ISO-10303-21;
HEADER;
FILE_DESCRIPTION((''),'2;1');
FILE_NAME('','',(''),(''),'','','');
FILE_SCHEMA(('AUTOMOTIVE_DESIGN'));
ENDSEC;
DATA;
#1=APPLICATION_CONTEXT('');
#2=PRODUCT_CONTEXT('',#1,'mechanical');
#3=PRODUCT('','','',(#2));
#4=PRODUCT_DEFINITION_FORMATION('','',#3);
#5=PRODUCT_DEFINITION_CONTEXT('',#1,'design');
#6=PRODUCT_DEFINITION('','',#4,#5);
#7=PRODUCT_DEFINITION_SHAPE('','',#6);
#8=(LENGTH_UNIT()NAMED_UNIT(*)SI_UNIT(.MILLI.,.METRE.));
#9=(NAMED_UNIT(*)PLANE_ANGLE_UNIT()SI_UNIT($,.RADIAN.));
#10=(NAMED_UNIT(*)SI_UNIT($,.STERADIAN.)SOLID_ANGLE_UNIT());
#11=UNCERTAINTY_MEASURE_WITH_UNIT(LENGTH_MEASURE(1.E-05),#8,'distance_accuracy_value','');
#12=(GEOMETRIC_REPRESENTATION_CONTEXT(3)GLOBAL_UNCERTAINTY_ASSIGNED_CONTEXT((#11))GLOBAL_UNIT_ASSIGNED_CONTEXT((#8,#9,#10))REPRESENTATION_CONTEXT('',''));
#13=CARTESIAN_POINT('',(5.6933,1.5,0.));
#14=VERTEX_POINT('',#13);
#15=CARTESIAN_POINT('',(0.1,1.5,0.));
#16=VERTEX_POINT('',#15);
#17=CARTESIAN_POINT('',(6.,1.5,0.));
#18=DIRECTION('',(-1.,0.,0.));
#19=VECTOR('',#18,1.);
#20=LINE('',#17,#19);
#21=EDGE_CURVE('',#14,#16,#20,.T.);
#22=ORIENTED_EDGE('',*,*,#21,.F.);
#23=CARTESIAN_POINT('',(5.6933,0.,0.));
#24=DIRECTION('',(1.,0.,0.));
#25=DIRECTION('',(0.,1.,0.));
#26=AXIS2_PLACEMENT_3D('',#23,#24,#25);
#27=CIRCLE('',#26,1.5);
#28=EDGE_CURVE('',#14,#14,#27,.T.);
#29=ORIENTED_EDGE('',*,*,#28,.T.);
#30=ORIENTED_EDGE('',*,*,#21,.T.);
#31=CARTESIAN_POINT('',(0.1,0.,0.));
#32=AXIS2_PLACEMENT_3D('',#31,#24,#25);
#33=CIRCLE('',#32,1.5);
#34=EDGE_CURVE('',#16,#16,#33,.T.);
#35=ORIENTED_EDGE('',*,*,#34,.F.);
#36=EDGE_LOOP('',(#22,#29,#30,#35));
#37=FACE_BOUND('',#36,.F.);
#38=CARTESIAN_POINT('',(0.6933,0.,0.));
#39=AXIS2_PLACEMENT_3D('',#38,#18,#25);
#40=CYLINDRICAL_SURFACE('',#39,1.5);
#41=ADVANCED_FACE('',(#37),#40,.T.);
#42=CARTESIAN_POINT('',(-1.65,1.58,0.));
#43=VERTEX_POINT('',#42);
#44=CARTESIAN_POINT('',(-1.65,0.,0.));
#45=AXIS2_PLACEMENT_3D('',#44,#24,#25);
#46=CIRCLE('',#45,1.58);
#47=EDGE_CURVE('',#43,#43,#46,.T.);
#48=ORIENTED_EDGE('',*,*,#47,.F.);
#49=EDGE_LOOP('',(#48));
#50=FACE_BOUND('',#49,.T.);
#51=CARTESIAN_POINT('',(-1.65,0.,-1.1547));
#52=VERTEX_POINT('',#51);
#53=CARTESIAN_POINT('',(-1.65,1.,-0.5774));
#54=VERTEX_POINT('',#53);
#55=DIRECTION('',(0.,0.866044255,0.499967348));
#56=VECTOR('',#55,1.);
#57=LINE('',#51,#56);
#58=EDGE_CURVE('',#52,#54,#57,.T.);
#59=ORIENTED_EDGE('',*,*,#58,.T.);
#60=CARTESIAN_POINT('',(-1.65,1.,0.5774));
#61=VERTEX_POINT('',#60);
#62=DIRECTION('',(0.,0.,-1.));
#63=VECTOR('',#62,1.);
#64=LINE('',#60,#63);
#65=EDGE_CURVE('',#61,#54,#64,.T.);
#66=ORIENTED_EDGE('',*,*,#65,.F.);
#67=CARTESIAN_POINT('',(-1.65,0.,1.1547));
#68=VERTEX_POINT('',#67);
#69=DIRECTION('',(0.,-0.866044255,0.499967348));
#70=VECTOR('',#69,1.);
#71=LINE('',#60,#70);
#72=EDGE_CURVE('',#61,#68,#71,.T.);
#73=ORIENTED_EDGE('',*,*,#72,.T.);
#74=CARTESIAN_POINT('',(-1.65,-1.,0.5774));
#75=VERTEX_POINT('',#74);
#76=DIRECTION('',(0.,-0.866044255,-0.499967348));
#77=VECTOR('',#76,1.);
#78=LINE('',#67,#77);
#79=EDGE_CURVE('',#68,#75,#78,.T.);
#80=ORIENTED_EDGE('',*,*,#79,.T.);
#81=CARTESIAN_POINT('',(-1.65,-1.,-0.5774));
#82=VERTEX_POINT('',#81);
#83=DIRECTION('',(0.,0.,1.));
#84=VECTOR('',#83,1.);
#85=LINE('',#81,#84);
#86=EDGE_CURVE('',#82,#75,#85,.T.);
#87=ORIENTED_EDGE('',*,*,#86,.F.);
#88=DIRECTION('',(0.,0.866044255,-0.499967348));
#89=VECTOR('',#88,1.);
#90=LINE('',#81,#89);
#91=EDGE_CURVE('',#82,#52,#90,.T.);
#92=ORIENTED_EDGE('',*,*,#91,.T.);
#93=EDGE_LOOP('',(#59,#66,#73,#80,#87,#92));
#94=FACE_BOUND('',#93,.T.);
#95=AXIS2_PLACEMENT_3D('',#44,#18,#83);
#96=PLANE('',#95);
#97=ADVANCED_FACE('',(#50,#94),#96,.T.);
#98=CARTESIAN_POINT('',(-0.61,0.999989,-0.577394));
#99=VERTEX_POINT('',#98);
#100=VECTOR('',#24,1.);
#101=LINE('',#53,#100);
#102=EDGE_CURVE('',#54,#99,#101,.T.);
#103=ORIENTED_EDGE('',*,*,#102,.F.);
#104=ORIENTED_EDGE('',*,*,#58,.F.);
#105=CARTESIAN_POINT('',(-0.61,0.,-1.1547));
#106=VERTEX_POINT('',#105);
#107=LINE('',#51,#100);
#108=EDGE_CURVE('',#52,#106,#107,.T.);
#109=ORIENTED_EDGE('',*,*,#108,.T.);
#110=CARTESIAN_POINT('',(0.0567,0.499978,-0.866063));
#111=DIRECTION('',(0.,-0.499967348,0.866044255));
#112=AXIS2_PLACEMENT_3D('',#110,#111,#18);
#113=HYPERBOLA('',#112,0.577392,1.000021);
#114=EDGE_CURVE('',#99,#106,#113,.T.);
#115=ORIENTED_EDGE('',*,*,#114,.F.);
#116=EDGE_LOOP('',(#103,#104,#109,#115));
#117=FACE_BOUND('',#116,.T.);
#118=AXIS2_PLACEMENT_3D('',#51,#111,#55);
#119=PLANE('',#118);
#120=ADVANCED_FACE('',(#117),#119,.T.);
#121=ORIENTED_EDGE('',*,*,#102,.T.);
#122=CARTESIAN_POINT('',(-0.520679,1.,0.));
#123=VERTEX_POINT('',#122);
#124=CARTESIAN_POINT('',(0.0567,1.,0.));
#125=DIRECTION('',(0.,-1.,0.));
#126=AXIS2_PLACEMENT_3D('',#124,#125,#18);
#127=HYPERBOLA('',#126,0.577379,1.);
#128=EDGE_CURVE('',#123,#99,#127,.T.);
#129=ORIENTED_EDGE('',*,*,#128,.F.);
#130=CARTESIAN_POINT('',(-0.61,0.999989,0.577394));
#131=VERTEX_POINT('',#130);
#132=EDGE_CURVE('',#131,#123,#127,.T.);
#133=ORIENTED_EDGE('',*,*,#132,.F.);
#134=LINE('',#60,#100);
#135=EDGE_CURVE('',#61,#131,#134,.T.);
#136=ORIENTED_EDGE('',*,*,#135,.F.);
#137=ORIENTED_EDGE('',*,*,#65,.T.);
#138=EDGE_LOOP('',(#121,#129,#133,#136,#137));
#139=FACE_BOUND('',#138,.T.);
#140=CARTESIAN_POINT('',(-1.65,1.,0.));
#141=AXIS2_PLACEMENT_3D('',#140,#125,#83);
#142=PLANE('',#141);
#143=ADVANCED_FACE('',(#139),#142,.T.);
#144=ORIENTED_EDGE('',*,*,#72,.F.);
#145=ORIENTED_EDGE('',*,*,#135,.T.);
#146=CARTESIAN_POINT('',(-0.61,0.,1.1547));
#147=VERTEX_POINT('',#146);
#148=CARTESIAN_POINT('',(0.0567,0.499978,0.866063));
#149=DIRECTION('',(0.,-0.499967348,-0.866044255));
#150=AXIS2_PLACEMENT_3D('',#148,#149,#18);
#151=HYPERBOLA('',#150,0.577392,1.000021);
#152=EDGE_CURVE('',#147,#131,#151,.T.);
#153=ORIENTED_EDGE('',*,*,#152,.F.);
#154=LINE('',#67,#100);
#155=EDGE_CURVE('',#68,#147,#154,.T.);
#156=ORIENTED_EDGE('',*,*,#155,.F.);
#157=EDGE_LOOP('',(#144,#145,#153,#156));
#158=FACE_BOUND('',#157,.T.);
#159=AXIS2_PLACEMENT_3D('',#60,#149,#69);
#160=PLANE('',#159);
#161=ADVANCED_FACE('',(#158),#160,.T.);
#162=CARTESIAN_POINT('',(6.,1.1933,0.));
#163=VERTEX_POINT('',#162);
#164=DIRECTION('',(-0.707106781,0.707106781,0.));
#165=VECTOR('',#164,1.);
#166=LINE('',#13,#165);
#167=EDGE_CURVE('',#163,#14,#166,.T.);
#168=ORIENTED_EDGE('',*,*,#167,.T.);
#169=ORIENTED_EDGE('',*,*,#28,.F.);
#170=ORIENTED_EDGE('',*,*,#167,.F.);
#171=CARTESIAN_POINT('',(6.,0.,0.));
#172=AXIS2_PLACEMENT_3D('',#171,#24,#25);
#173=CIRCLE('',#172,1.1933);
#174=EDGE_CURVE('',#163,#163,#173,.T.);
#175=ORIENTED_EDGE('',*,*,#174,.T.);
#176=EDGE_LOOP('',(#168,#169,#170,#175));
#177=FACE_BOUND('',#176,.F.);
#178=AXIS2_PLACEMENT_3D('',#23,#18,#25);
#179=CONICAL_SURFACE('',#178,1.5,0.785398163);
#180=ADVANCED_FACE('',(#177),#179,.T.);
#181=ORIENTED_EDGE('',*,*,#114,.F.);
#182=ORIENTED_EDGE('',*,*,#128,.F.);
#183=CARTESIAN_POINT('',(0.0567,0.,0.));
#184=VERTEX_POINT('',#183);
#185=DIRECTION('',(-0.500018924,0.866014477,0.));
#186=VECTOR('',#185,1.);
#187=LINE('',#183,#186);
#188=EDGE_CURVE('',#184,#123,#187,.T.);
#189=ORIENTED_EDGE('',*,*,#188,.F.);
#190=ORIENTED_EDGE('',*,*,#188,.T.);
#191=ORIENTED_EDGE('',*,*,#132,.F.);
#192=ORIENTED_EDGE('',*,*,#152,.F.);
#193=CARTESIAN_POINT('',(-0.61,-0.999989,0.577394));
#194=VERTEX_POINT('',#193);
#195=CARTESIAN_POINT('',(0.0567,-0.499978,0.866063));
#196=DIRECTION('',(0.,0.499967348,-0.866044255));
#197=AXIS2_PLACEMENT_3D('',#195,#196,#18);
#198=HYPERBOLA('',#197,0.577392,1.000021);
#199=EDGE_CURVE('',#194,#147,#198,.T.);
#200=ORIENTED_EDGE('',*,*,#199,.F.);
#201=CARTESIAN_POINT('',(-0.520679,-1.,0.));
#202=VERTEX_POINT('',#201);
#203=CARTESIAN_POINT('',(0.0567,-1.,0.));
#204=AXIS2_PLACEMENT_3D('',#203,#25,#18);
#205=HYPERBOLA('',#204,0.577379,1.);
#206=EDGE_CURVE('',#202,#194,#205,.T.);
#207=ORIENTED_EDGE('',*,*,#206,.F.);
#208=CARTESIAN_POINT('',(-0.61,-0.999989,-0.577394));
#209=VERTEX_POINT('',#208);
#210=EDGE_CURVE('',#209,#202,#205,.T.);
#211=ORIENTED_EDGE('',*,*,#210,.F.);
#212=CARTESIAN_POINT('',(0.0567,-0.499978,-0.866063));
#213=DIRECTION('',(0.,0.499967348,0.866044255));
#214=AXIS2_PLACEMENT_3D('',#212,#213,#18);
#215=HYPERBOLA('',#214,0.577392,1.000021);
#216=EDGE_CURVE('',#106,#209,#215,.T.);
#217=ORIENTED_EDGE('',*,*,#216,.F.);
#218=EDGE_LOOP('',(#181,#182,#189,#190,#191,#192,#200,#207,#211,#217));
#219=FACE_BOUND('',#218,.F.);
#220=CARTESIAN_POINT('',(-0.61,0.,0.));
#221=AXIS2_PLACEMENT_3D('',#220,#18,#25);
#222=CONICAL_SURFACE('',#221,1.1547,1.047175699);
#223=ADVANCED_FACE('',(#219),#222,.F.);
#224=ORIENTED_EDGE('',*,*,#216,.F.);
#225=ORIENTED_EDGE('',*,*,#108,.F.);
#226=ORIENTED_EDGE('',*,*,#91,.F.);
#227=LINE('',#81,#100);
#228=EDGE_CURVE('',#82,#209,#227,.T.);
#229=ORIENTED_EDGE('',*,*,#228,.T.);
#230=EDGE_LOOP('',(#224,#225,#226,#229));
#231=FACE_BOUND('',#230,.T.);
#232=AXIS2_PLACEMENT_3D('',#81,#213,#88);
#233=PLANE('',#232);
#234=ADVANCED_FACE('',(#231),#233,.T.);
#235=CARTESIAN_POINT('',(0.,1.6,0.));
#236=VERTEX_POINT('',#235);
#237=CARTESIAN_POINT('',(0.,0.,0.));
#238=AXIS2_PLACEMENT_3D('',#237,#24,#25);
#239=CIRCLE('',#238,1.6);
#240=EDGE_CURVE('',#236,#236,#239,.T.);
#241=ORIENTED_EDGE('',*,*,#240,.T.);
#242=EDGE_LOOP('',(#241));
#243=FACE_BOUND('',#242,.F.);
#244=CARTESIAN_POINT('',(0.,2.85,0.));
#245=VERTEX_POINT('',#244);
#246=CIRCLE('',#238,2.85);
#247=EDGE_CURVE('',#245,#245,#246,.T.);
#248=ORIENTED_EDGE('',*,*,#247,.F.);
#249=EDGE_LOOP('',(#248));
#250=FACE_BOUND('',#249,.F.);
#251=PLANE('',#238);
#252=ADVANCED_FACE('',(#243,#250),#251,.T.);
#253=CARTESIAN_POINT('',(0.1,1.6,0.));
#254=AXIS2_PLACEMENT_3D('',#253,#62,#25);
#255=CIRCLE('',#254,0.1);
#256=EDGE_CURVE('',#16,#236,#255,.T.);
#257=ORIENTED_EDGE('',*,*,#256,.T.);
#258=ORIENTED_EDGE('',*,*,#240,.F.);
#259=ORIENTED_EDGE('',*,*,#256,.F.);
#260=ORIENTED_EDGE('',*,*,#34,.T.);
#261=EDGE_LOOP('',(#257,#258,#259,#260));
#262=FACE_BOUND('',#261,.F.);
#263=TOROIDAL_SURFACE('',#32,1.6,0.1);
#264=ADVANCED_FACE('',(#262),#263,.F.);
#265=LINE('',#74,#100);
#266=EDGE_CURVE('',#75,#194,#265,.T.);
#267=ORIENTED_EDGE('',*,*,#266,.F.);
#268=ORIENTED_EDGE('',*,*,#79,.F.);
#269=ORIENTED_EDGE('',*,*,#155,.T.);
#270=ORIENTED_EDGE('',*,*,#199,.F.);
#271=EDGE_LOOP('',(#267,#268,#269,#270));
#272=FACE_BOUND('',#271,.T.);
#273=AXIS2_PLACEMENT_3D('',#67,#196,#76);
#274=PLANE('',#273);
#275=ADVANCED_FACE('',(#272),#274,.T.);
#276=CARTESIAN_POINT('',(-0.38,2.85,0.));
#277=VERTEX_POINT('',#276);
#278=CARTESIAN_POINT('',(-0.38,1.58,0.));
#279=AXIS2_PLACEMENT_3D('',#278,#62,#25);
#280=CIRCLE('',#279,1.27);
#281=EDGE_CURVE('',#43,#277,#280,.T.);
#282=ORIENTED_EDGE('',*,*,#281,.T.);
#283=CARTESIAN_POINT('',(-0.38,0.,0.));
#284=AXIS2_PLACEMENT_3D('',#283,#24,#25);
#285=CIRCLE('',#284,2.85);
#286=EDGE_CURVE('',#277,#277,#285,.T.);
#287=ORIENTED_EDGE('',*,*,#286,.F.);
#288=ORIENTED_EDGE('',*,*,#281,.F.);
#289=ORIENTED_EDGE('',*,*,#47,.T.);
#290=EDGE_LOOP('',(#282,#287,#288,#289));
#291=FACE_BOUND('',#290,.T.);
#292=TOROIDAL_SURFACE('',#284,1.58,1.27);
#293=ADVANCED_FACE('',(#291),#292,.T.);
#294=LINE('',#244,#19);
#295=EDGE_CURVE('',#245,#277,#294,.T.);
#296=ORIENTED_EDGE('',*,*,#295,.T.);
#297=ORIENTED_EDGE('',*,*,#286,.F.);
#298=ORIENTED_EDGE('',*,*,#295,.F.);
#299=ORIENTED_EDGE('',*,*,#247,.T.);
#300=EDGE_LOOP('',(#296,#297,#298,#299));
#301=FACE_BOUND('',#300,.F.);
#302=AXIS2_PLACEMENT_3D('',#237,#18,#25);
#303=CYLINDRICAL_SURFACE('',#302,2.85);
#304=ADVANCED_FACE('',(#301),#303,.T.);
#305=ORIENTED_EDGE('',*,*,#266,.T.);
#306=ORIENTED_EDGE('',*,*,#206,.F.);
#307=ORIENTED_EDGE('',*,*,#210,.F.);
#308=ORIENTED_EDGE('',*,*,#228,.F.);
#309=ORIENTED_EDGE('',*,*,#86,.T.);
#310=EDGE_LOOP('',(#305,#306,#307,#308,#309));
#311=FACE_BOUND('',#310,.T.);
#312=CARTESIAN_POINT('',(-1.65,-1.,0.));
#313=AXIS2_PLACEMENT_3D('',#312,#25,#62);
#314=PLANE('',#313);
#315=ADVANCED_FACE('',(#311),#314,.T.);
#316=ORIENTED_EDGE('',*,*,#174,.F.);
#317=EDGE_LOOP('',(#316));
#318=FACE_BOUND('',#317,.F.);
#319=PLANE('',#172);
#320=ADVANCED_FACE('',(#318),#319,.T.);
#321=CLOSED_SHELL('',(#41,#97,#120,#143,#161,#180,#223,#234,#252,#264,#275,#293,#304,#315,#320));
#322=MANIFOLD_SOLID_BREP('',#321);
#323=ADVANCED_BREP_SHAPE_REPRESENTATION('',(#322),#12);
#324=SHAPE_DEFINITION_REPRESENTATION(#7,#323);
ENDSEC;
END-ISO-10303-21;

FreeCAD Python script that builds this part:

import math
import FreeCAD as App
import Part
import Sketcher


def edges_at(feature, points):
    """Names of the edges that pass closest to the given points."""
    edges = feature.Shape.Edges
    near = lambda p: min(range(len(edges)), key=lambda i: edges[i].distToShape(Part.Vertex(*p))[0])
    return sorted({f"Edge{near(p) + 1}" for p in points})

doc = App.newDocument("Part")
params = doc.addObject("Spreadsheet::Sheet", "Params")
for row, (alias, value) in enumerate([
    ("sketch1_width", "6 mm"),
    ("sketch1_width2", "1.65 mm"),
    ("sketch1_width3", "1.04 mm"),
    ("sketch1_height", "1.5 mm"),
    ("sketch1_height2", "1.35 mm"),
    ("revolution_angle", "360 deg"),
    ("pad1_length", "1.1293 mm"),
    ("fillet_radius", "1.27 mm"),
    ("chamfer_size", "0.3067 mm"),
    ("chamfer_size2", "0.3067 mm"),
    ("fillet2_radius", "0.1 mm"),
], start=1):
    params.set(f"A{row}", alias)
    params.set(f"B{row}", "=" + value)
    params.setAlias(f"B{row}", alias)

body = doc.addObject("PartDesign::Body", "Body")

# Sketch on XY plane
sketch1 = body.newObject("Sketcher::SketchObject", "Sketch")
sketch1.AttachmentSupport = (doc.getObject("XY_Plane"), [""])
sketch1.MapMode = "FlatFace"
sketch1.addGeometry([
    Part.LineSegment(App.Vector(0.1, 0, 0), App.Vector(6, 0, 0)),  # 0
    Part.LineSegment(App.Vector(6, 0, 0), App.Vector(6, 1.5, 0)),  # 1
    Part.LineSegment(App.Vector(6, 1.5, 0), App.Vector(0, 1.5, 0)),  # 2
    Part.LineSegment(App.Vector(0, 1.5, 0), App.Vector(0, 2.9, 0)),  # 3
    Part.LineSegment(App.Vector(0, 2.9, 0), App.Vector(-1.6, 2.9, 0)),  # 4
    Part.LineSegment(App.Vector(-1.6, 2.9, 0), App.Vector(-1.6, 1.2, 0)),  # 5
    Part.LineSegment(App.Vector(-1.6, 1.2, 0), App.Vector(-0.6, 1.2, 0)),  # 6
    Part.LineSegment(App.Vector(-0.6, 1.2, 0), App.Vector(0.1, 0, 0)),  # 7
], False)
sketch1.addConstraint([
    Sketcher.Constraint("Coincident", 0, 2, 1, 1),
    Sketcher.Constraint("Coincident", 1, 2, 2, 1),
    Sketcher.Constraint("Coincident", 2, 2, 3, 1),
    Sketcher.Constraint("Coincident", 3, 2, 4, 1),
    Sketcher.Constraint("Coincident", 4, 2, 5, 1),
    Sketcher.Constraint("Coincident", 5, 2, 6, 1),
    Sketcher.Constraint("Coincident", 6, 2, 7, 1),
    Sketcher.Constraint("Coincident", 7, 2, 0, 1),
    Sketcher.Constraint("Horizontal", 0),
    Sketcher.Constraint("Vertical", 1),
    Sketcher.Constraint("Horizontal", 2),
    Sketcher.Constraint("Vertical", 3),
    Sketcher.Constraint("Horizontal", 4),
    Sketcher.Constraint("Vertical", 5),
    Sketcher.Constraint("Horizontal", 6),
    Sketcher.Constraint("PointOnObject", 0, 2, -1),
    Sketcher.Constraint("PointOnObject", 2, 2, -2),
    Sketcher.Constraint("DistanceX", 2, 2, 2, 1, 6.0),
    Sketcher.Constraint("DistanceX", 4, 2, 4, 1, 1.65),
    Sketcher.Constraint("DistanceX", 6, 1, 6, 2, 1.04),
    Sketcher.Constraint("DistanceY", 1, 1, 1, 2, 1.5),
    Sketcher.Constraint("DistanceY", 3, 1, 3, 2, 1.35),
    Sketcher.Constraint("DistanceX", 0, 1, 0, 2, 5.9433),
    Sketcher.Constraint("DistanceY", 5, 2, 5, 1, 1.6953),
])
sketch1.setExpression("Constraints[17]", "Params.sketch1_width")
sketch1.setExpression("Constraints[18]", "Params.sketch1_width2")
sketch1.setExpression("Constraints[19]", "Params.sketch1_width3")
sketch1.setExpression("Constraints[20]", "Params.sketch1_height")
sketch1.setExpression("Constraints[21]", "Params.sketch1_height2")
revolution = body.newObject("PartDesign::Revolution", "Revolution")
revolution.Profile = sketch1
revolution.ReferenceAxis = (sketch1, ["H_Axis"])
revolution.setExpression("Angle", "Params.revolution_angle")

# Sketch on YZ plane
sketch2 = body.newObject("Sketcher::SketchObject", "Sketch001")
sketch2.AttachmentSupport = (doc.getObject("YZ_Plane"), [""])
sketch2.MapMode = "FlatFace"
sketch2.AttachmentOffset = App.Placement(App.Vector(0, 0, -1.65), App.Rotation())
sketch2.addGeometry([
    Part.LineSegment(App.Vector(1, 0.6, 0), App.Vector(0, 1.2, 0)),  # 0
    Part.ArcOfCircle(Part.Circle(App.Vector(0, 0, 0), App.Vector(0, 0, 1), 1.2), math.radians(30), math.radians(90)),  # 1
    Part.ArcOfCircle(Part.Circle(App.Vector(0, 0, 0), App.Vector(0, 0, 1), 1.2), math.radians(90), math.radians(150)),  # 2
    Part.LineSegment(App.Vector(0, 1.2, 0), App.Vector(-1, 0.6, 0)),  # 3
    Part.ArcOfCircle(Part.Circle(App.Vector(0, 0, 0), App.Vector(0, 0, 1), 1.2), math.radians(-30), math.radians(30)),  # 4
    Part.LineSegment(App.Vector(1, 0.6, 0), App.Vector(1, -0.6, 0)),  # 5
    Part.LineSegment(App.Vector(-1, 0.6, 0), App.Vector(-1, -0.6, 0)),  # 6
    Part.ArcOfCircle(Part.Circle(App.Vector(0, 0, 0), App.Vector(0, 0, 1), 1.2), math.radians(150), math.radians(210)),  # 7
    Part.LineSegment(App.Vector(-1, -0.6, 0), App.Vector(0, -1.2, 0)),  # 8
    Part.ArcOfCircle(Part.Circle(App.Vector(0, 0, 0), App.Vector(0, 0, 1), 1.2), math.radians(-150), math.radians(-90)),  # 9
    Part.ArcOfCircle(Part.Circle(App.Vector(0, 0, 0), App.Vector(0, 0, 1), 1.2), math.radians(-90), math.radians(-30)),  # 10
    Part.LineSegment(App.Vector(0, -1.2, 0), App.Vector(1, -0.6, 0)),  # 11
], False)
sketch2.addConstraint([
    Sketcher.Constraint("Coincident", 0, 1, 1, 1),
    Sketcher.Constraint("Coincident", 1, 2, 0, 2),
    Sketcher.Constraint("Coincident", 2, 1, 3, 1),
    Sketcher.Constraint("Coincident", 3, 2, 2, 2),
    Sketcher.Constraint("Coincident", 4, 1, 5, 2),
    Sketcher.Constraint("Coincident", 5, 1, 4, 2),
    Sketcher.Constraint("Coincident", 6, 1, 7, 1),
    Sketcher.Constraint("Coincident", 7, 2, 6, 2),
    Sketcher.Constraint("Coincident", 8, 1, 9, 1),
    Sketcher.Constraint("Coincident", 9, 2, 8, 2),
    Sketcher.Constraint("Coincident", 10, 1, 11, 1),
    Sketcher.Constraint("Coincident", 11, 2, 10, 2),
    Sketcher.Constraint("Vertical", 5),
    Sketcher.Constraint("Vertical", 6),
    Sketcher.Constraint("Coincident", 1, 3, -1, 1),
    Sketcher.Constraint("Coincident", 2, 3, -1, 1),
    Sketcher.Constraint("Coincident", 4, 3, -1, 1),
    Sketcher.Constraint("Coincident", 7, 3, -1, 1),
    Sketcher.Constraint("Coincident", 9, 3, -1, 1),
    Sketcher.Constraint("Coincident", 10, 3, -1, 1),
    Sketcher.Constraint("Coincident", 2, 1, 1, 2),
    Sketcher.Constraint("Coincident", 5, 1, 0, 1),
    Sketcher.Constraint("Coincident", 6, 1, 3, 2),
    Sketcher.Constraint("Coincident", 8, 1, 7, 2),
    Sketcher.Constraint("Coincident", 10, 1, 9, 2),
    Sketcher.Constraint("PointOnObject", 1, 2, -2),
    Sketcher.Constraint("PointOnObject", 9, 2, -2),
    Sketcher.Constraint("Parallel", 0, 8),
    Sketcher.Constraint("Parallel", 3, 11),
    Sketcher.Constraint("DistanceX", -1, 1, 0, 1, 1.0),
    Sketcher.Constraint("Radius", 1, 1.1547),
])
pad1 = body.newObject("PartDesign::Pad", "Pad")
pad1.Profile = sketch2
pad1.setExpression("Length", "Params.pad1_length")
doc.recompute()

fillet = body.newObject("PartDesign::Fillet", "Fillet")
fillet.Base = (pad1, edges_at(pad1, [(-1.65, -2.85, 0)]))
fillet.setExpression("Radius", "Params.fillet_radius")
doc.recompute()

chamfer = body.newObject("PartDesign::Chamfer", "Chamfer")
chamfer.Base = (fillet, edges_at(fillet, [(6, -1.5, 0)]))
chamfer.ChamferType = "Two distances"
chamfer.setExpression("Size", "Params.chamfer_size")
chamfer.setExpression("Size2", "Params.chamfer_size2")
doc.recompute()

fillet2 = body.newObject("PartDesign::Fillet", "Fillet001")
fillet2.Base = (chamfer, edges_at(chamfer, [(0, -1.5, 0)]))
fillet2.setExpression("Radius", "Params.fillet2_radius")

doc.recompute()
